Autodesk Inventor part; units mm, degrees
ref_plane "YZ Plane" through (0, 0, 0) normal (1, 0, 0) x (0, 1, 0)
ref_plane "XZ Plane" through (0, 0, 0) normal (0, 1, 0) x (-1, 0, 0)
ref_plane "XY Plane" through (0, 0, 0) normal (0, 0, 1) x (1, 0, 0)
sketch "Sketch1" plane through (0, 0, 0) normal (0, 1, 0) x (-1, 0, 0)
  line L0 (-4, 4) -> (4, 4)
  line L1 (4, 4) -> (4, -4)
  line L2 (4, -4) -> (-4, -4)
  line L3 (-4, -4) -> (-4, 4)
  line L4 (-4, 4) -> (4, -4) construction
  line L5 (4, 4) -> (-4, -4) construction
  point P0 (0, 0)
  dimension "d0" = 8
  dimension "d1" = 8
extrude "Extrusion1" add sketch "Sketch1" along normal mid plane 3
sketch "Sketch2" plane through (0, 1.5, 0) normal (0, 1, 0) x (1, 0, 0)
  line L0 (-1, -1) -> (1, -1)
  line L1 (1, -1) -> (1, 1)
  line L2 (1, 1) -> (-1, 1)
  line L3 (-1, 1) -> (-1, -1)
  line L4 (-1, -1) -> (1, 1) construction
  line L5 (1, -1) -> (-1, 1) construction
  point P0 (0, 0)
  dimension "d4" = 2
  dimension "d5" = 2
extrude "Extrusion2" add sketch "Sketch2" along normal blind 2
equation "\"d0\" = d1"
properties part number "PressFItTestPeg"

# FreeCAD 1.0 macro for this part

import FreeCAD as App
import Part
import Sketcher

V = App.Vector

doc = App.newDocument("Part")
body = doc.addObject("PartDesign::Body", "Body")

# Sketch on XZ plane
sketch1 = body.newObject("Sketcher::SketchObject", "Sketch")
sketch1.AttachmentSupport = (doc.getObject("XZ_Plane"), [""])
sketch1.MapMode = "FlatFace"
sketch1.addGeometry(Part.LineSegment(V(-4, 4, 0), V(4, 4, 0)), False)
sketch1.addGeometry(Part.LineSegment(V(4, 4, 0), V(4, -4, 0)), False)
sketch1.addGeometry(Part.LineSegment(V(4, -4, 0), V(-4, -4, 0)), False)
sketch1.addGeometry(Part.LineSegment(V(-4, -4, 0), V(-4, 4, 0)), False)
sketch1.addConstraint(Sketcher.Constraint("Coincident", 0, 2, 1, 1))
sketch1.addConstraint(Sketcher.Constraint("Coincident", 1, 2, 2, 1))
sketch1.addConstraint(Sketcher.Constraint("Coincident", 2, 2, 3, 1))
sketch1.addConstraint(Sketcher.Constraint("Coincident", 3, 2, 0, 1))
sketch1.addConstraint(Sketcher.Constraint("Horizontal", 0))
sketch1.addConstraint(Sketcher.Constraint("Vertical", 1))
sketch1.addConstraint(Sketcher.Constraint("Horizontal", 2))
sketch1.addConstraint(Sketcher.Constraint("Vertical", 3))
sketch1.addConstraint(Sketcher.Constraint("Symmetric", 0, 2, 2, 2, -1, 1))
sketch1.addConstraint(Sketcher.Constraint("Equal", 2, 1))
sketch1.addConstraint(Sketcher.Constraint("DistanceX", 0, 1, 0, 2, 8.0))
pad1 = body.newObject("PartDesign::Pad", "Pad")
pad1.Profile = sketch1
pad1.Length = 3
pad1.Midplane = True

# Sketch on XZ plane
sketch2 = body.newObject("Sketcher::SketchObject", "Sketch001")
sketch2.AttachmentSupport = (doc.getObject("XZ_Plane"), [""])
sketch2.MapMode = "FlatFace"
sketch2.AttachmentOffset = App.Placement(V(0, 0, -1.5), App.Rotation())
sketch2.addGeometry(Part.LineSegment(V(-1, -1, 0), V(-1, 1, 0)), False)
sketch2.addGeometry(Part.LineSegment(V(-1, 1, 0), V(1, 1, 0)), False)
sketch2.addGeometry(Part.LineSegment(V(1, 1, 0), V(1, -1, 0)), False)
sketch2.addGeometry(Part.LineSegment(V(1, -1, 0), V(-1, -1, 0)), False)
sketch2.addConstraint(Sketcher.Constraint("Coincident", 0, 2, 1, 1))
sketch2.addConstraint(Sketcher.Constraint("Coincident", 1, 2, 2, 1))
sketch2.addConstraint(Sketcher.Constraint("Coincident", 2, 2, 3, 1))
sketch2.addConstraint(Sketcher.Constraint("Coincident", 3, 2, 0, 1))
sketch2.addConstraint(Sketcher.Constraint("Vertical", 0))
sketch2.addConstraint(Sketcher.Constraint("Horizontal", 1))
sketch2.addConstraint(Sketcher.Constraint("Vertical", 2))
sketch2.addConstraint(Sketcher.Constraint("Horizontal", 3))
sketch2.addConstraint(Sketcher.Constraint("Symmetric", 0, 2, 2, 2, -1, 1))
sketch2.addConstraint(Sketcher.Constraint("Equal", 3, 0))
sketch2.addConstraint(Sketcher.Constraint("DistanceX", 1, 1, 1, 2, 2.0))
pad2 = body.newObject("PartDesign::Pad", "Pad001")
pad2.Profile = sketch2
pad2.Length = 2
pad2.Reversed = True

doc.recompute()
